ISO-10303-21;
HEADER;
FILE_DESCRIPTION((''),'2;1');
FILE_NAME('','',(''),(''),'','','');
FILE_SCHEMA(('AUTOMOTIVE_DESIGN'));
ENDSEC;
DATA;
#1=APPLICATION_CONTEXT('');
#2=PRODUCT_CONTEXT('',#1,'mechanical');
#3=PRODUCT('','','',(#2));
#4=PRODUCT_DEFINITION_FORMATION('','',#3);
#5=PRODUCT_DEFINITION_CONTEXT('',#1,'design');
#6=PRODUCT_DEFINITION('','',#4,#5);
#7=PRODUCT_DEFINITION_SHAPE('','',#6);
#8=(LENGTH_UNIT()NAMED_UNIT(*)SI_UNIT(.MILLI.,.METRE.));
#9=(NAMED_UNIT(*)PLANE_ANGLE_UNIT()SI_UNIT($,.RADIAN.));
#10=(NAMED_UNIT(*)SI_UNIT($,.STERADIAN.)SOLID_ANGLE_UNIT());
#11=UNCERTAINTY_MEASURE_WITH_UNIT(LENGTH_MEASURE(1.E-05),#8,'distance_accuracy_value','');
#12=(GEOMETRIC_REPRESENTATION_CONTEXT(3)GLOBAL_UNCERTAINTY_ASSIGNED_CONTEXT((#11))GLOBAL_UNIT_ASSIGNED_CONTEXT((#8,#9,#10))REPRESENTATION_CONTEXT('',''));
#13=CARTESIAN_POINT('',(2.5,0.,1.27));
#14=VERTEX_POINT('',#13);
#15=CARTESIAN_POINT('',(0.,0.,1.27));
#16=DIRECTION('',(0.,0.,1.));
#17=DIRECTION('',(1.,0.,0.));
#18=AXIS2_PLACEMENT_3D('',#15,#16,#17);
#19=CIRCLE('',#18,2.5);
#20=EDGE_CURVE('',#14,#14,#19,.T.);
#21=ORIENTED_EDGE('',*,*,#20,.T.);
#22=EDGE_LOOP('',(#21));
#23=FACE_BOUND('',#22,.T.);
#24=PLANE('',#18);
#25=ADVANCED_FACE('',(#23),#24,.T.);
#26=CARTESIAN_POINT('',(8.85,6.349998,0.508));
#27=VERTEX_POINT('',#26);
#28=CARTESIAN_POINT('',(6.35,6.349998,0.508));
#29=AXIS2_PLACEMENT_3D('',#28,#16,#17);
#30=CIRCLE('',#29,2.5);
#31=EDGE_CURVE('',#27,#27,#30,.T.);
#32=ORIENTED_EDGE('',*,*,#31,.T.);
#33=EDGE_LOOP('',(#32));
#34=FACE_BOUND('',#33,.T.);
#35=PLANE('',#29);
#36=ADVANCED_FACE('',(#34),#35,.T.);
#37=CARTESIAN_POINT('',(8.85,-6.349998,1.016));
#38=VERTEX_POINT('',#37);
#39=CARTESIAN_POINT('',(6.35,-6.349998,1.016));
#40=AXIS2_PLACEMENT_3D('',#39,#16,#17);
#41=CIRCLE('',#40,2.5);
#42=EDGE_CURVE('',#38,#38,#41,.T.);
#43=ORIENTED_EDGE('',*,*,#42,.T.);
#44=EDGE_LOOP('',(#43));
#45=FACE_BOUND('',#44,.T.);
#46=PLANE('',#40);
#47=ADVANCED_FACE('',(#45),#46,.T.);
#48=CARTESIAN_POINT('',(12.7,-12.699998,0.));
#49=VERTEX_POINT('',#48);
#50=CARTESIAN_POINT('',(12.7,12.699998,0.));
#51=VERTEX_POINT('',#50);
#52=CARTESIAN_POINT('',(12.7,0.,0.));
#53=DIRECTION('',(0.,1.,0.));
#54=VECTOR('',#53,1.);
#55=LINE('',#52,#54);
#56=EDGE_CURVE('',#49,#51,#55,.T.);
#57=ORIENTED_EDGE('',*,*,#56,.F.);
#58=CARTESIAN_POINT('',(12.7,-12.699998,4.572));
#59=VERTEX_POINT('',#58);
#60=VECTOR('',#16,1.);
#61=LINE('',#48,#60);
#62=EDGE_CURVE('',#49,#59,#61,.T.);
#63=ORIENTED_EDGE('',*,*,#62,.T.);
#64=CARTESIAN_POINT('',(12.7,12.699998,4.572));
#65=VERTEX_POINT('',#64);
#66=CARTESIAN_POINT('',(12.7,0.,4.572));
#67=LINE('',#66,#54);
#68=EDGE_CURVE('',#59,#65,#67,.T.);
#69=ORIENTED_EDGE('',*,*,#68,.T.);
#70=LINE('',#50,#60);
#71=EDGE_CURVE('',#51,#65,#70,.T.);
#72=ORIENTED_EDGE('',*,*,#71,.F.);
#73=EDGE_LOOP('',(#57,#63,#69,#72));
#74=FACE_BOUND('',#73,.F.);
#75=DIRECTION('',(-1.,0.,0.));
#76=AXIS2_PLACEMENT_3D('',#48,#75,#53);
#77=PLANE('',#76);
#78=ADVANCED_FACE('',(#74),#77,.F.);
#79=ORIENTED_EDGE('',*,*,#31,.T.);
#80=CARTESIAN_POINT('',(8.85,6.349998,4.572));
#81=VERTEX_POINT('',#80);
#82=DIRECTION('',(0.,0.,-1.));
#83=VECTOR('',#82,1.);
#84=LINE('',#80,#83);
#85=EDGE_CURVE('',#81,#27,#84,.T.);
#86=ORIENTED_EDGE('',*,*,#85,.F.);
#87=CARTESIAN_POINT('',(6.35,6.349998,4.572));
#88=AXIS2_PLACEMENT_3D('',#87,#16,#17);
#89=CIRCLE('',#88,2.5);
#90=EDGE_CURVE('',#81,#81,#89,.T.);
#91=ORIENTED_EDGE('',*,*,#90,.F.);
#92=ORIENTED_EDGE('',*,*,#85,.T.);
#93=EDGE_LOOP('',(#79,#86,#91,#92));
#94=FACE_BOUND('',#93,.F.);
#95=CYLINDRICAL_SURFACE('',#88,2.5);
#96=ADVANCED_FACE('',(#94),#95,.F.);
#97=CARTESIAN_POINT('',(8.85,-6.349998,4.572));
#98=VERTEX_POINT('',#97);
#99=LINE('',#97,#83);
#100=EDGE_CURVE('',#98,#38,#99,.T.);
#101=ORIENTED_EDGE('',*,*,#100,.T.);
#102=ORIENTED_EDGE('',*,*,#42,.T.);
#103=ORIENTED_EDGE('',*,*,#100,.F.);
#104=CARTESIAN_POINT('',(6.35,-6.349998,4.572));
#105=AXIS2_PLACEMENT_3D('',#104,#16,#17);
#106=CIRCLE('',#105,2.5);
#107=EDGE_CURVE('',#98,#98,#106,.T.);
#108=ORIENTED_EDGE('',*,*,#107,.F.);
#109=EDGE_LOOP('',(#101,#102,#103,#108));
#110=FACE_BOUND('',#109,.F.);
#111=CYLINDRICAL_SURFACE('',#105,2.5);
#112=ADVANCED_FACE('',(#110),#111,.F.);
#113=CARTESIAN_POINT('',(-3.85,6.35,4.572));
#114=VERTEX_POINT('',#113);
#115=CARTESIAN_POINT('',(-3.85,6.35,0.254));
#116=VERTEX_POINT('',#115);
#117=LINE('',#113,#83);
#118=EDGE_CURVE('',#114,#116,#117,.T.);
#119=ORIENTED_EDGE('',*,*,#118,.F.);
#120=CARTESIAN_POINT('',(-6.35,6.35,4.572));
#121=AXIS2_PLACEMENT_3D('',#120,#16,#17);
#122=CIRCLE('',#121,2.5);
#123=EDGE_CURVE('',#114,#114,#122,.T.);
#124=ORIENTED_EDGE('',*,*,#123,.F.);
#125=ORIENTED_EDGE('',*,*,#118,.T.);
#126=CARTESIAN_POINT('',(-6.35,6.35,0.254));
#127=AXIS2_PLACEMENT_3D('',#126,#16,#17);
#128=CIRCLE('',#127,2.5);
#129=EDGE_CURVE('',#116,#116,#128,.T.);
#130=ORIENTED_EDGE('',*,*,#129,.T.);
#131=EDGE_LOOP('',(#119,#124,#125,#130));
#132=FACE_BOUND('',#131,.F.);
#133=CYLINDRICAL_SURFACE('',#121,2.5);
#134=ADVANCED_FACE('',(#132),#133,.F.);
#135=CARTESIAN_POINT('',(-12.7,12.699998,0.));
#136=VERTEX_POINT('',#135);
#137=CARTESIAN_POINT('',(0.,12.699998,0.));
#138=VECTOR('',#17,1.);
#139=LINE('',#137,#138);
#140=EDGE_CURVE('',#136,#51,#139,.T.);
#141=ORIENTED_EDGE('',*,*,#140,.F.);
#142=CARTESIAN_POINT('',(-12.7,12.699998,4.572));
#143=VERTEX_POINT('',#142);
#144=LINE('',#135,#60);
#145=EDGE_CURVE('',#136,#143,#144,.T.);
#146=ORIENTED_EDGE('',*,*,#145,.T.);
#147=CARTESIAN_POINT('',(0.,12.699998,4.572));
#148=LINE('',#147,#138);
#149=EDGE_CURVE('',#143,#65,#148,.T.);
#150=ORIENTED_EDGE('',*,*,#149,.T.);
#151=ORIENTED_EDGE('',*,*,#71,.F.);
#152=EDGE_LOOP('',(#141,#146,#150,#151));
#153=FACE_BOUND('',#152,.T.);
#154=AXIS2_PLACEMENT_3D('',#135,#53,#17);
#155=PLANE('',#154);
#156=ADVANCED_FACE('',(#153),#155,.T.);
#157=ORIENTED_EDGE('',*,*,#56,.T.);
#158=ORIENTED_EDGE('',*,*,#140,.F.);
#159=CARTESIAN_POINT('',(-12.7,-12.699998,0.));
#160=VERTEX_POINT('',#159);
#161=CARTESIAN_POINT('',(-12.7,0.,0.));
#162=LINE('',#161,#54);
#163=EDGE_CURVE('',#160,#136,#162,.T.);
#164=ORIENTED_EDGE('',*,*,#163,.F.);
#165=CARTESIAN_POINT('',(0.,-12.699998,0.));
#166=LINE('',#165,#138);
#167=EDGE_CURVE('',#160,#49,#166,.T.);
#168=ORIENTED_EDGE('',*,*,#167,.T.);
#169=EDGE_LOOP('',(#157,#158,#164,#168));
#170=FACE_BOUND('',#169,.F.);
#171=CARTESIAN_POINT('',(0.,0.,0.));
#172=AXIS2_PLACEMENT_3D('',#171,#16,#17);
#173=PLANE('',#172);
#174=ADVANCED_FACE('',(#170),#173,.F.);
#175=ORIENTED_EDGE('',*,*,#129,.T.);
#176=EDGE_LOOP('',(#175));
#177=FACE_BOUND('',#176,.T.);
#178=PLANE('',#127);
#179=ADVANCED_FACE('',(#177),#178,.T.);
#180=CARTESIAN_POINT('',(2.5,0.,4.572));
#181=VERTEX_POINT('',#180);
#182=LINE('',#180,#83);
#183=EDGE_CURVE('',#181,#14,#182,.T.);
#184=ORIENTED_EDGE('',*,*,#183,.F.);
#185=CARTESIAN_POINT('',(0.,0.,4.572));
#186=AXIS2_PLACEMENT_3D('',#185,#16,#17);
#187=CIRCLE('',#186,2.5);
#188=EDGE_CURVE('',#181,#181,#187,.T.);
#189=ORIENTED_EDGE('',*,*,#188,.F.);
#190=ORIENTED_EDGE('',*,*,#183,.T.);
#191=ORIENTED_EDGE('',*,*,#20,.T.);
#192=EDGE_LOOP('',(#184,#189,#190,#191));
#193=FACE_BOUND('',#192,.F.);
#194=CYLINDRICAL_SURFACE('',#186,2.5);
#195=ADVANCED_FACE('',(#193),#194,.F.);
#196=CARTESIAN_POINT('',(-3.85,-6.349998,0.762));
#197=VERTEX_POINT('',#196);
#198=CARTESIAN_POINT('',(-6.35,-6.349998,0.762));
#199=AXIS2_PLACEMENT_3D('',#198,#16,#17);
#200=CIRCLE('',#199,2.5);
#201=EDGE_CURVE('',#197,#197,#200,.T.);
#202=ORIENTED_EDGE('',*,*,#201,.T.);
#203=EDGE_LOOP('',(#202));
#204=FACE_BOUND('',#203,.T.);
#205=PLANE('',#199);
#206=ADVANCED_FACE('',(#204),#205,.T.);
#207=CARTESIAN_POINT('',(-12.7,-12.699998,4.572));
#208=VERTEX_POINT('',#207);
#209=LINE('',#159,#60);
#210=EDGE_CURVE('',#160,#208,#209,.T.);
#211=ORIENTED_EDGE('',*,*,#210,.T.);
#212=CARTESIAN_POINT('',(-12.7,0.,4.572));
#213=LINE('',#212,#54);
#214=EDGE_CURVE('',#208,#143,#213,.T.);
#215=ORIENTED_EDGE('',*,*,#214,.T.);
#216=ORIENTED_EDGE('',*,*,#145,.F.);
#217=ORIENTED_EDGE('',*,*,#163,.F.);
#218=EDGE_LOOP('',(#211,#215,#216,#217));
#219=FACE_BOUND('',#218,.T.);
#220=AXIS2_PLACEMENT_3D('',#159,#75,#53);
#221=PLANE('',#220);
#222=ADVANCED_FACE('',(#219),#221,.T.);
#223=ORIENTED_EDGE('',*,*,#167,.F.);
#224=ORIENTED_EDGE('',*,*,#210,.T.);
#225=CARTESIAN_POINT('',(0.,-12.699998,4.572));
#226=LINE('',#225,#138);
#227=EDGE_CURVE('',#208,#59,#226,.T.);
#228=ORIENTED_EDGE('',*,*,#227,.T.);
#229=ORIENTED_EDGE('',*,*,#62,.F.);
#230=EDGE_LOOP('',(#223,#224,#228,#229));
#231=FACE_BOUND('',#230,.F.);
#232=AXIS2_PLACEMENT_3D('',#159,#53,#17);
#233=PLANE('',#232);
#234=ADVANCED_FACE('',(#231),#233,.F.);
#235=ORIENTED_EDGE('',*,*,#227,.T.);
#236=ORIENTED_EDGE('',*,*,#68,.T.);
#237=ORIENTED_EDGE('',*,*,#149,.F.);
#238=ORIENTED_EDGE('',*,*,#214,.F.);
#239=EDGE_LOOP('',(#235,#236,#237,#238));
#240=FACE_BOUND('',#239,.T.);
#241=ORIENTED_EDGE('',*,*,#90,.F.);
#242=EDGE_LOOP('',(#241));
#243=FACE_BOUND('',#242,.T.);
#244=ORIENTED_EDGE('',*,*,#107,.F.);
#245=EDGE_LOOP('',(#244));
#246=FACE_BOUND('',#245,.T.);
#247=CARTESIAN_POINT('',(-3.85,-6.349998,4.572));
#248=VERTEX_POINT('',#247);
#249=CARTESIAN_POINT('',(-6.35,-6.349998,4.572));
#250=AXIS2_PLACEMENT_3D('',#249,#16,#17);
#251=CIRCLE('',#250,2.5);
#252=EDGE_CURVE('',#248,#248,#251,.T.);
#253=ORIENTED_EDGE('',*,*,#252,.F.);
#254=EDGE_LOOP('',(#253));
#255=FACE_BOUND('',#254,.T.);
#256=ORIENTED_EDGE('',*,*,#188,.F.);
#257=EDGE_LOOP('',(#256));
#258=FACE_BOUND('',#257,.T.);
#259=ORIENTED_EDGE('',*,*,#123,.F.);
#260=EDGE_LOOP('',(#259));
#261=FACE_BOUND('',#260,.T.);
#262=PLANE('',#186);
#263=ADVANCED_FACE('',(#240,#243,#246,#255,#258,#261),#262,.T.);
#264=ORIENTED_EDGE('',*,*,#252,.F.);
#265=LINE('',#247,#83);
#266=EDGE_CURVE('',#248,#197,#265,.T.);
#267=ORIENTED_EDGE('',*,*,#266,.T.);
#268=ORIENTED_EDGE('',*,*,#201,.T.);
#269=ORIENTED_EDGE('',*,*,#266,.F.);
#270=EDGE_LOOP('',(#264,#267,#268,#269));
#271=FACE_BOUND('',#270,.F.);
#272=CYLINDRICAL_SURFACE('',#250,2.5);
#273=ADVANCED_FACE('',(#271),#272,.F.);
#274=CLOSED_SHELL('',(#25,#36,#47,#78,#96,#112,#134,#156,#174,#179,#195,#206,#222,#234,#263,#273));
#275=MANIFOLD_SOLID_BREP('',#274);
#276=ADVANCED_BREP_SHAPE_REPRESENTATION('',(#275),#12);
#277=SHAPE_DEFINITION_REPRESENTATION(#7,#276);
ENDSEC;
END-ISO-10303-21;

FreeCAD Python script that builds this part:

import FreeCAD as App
import Part
import Sketcher
from FreeCAD import Vector
Q = App.Units.Quantity

doc = App.newDocument("Part")
body = doc.addObject("PartDesign::Body", "Body")

sketch1 = body.newObject("Sketcher::SketchObject", "Sketch")
sketch1.AttachmentSupport = (doc.getObject("XY_Plane"), [""])
sketch1.MapMode = "FlatFace"
sketch1.addGeometry([
    Part.LineSegment(Vector(-12.7, 12.699998, 0), Vector(-12.7, -12.699998, 0)),
    Part.LineSegment(Vector(-12.7, -12.699998, 0), Vector(12.7, -12.699998, 0)),
    Part.LineSegment(Vector(12.7, -12.699998, 0), Vector(12.7, 12.699998, 0)),
    Part.LineSegment(Vector(12.7, 12.699998, 0), Vector(-12.7, 12.699998, 0)),
], False)
sketch1.addConstraint([
    Sketcher.Constraint("Coincident", 0, 2, 1, 1),
    Sketcher.Constraint("Coincident", 1, 2, 2, 1),
    Sketcher.Constraint("Coincident", 2, 2, 3, 1),
    Sketcher.Constraint("Coincident", 3, 2, 0, 1),
    Sketcher.Constraint("Vertical", 0),
    Sketcher.Constraint("Horizontal", 1),
    Sketcher.Constraint("Vertical", 2),
    Sketcher.Constraint("Horizontal", 3),
    Sketcher.Constraint("Symmetric", 0, 2, 2, 2, -1, 1),
    Sketcher.Constraint("DistanceX", 1, 1, 1, 2, Q("1 in")),
    Sketcher.Constraint("DistanceY", 0, 2, 0, 1, Q("0.9999998 in")),
])
pad1 = body.newObject("PartDesign::Pad", "Pad")
pad1.Profile = sketch1
pad1.Length = Q("0.18 in")

sketch2 = body.newObject("Sketcher::SketchObject", "Sketch001")
sketch2.AttachmentSupport = (doc.getObject("XY_Plane"), [""])
sketch2.MapMode = "FlatFace"
sketch2.AttachmentOffset = App.Placement(Vector(0, 0, 0.18 * 25.4), App.Rotation())
sketch2.addGeometry(Part.Circle(Vector(-6.35, 6.35, 0), Vector(0, 0, 1), 2.5), False)
sketch2.addConstraint([
    Sketcher.Constraint("Diameter", 0, Q("5 mm")),
    Sketcher.Constraint("DistanceX", 0, 3, -1, 1, Q("0.25 in")),
    Sketcher.Constraint("DistanceY", -1, 1, 0, 3, Q("0.25 in")),
])
pocket1 = body.newObject("PartDesign::Pocket", "Pocket")
pocket1.Profile = sketch2
pocket1.Length = Q("0.17 in")

sketch3 = body.newObject("Sketcher::SketchObject", "Sketch002")
sketch3.AttachmentSupport = (doc.getObject("XY_Plane"), [""])
sketch3.MapMode = "FlatFace"
sketch3.AttachmentOffset = App.Placement(Vector(0, 0, 0.18 * 25.4), App.Rotation())
sketch3.addGeometry(Part.Circle(Vector(6.35, 6.349998, 0), Vector(0, 0, 1), 2.5), False)
sketch3.addConstraint([
    Sketcher.Constraint("Diameter", 0, Q("5 mm")),
    Sketcher.Constraint("DistanceX", -1, 1, 0, 3, Q("0.25 in")),
    Sketcher.Constraint("DistanceY", -1, 1, 0, 3, Q("0.2499999 in")),
])
pocket2 = body.newObject("PartDesign::Pocket", "Pocket001")
pocket2.Profile = sketch3
pocket2.Length = Q("0.16 in")

sketch4 = body.newObject("Sketcher::SketchObject", "Sketch003")
sketch4.AttachmentSupport = (doc.getObject("XY_Plane"), [""])
sketch4.MapMode = "FlatFace"
sketch4.AttachmentOffset = App.Placement(Vector(0, 0, 0.18 * 25.4), App.Rotation())
sketch4.addGeometry(Part.Circle(Vector(-6.35, -6.349998, 0), Vector(0, 0, 1), 2.5), False)
sketch4.addConstraint([
    Sketcher.Constraint("Diameter", 0, Q("5 mm")),
    Sketcher.Constraint("DistanceX", 0, 3, -1, 1, Q("0.25 in")),
    Sketcher.Constraint("DistanceY", 0, 3, -1, 1, Q("0.2499999 in")),
])
pocket3 = body.newObject("PartDesign::Pocket", "Pocket002")
pocket3.Profile = sketch4
pocket3.Length = Q("0.15 in")

sketch5 = body.newObject("Sketcher::SketchObject", "Sketch004")
sketch5.AttachmentSupport = (doc.getObject("XY_Plane"), [""])
sketch5.MapMode = "FlatFace"
sketch5.AttachmentOffset = App.Placement(Vector(0, 0, 0.18 * 25.4), App.Rotation())
sketch5.addGeometry(Part.Circle(Vector(6.35, -6.349998, 0), Vector(0, 0, 1), 2.5), False)
sketch5.addConstraint([
    Sketcher.Constraint("Diameter", 0, Q("5 mm")),
    Sketcher.Constraint("DistanceX", -1, 1, 0, 3, Q("0.25 in")),
    Sketcher.Constraint("DistanceY", 0, 3, -1, 1, Q("0.2499999 in")),
])
pocket4 = body.newObject("PartDesign::Pocket", "Pocket003")
pocket4.Profile = sketch5
pocket4.Length = Q("0.14 in")

sketch6 = body.newObject("Sketcher::SketchObject", "Sketch005")
sketch6.AttachmentSupport = (doc.getObject("XY_Plane"), [""])
sketch6.MapMode = "FlatFace"
sketch6.AttachmentOffset = App.Placement(Vector(0, 0, 0.18 * 25.4), App.Rotation())
sketch6.addGeometry(Part.Circle(Vector(0, 0, 0), Vector(0, 0, 1), 2.5), False)
sketch6.addConstraint([
    Sketcher.Constraint("Coincident", 0, 3, -1, 1),
    Sketcher.Constraint("Diameter", 0, Q("5 mm")),
])
pocket5 = body.newObject("PartDesign::Pocket", "Pocket004")
pocket5.Profile = sketch6
pocket5.Length = Q("0.13 in")

doc.recompute()
